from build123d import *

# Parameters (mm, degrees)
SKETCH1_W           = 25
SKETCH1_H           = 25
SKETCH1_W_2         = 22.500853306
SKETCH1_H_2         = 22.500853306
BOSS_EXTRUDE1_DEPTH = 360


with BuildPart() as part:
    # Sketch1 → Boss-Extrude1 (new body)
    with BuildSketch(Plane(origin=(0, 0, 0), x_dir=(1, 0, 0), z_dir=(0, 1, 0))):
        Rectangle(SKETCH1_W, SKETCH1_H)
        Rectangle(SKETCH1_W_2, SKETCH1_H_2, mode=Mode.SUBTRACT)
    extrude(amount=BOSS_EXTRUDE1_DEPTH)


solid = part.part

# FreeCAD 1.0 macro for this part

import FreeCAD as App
import Part
import Sketcher
from FreeCAD import Vector
Q = App.Units.Quantity


def add_polygon(sketch, points):
    """Adds a closed chain of lines whose ends are joined by coincident constraints."""
    first, n = sketch.GeometryCount, len(points)
    for a, b in zip(points, points[1:] + points[:1]):
        sketch.addGeometry(Part.LineSegment(App.Vector(*a, 0), App.Vector(*b, 0)), False)
    for i in range(n):
        sketch.addConstraint(Sketcher.Constraint("Coincident", first + i, 2, first + (i + 1) % n, 1))

doc = App.newDocument("Part")
params = doc.addObject("Spreadsheet::Sheet", "Params")
for row, (alias, value) in enumerate([
    ("sketch1_width", "25 mm"),
    ("pad1_length", "360 mm"),
], start=1):
    params.set(f"A{row}", alias)
    params.set(f"B{row}", "=" + value)
    params.setAlias(f"B{row}", alias)

body = doc.addObject("PartDesign::Body", "Body")

# Sketch on XZ plane
sketch1 = doc.addObject("Sketcher::SketchObject", "Sketch")
body.addObject(sketch1)
sketch1.AttachmentSupport = (doc.XZ_Plane, [""])
sketch1.MapMode = "FlatFace"
add_polygon(sketch1, [(-12, -12), (-12, 12), (12, 12), (12, -12)])  # lines 0-3
add_polygon(sketch1, [(11, 11), (-11, 11), (-11, -11), (11, -11)])  # lines 4-7
sketch1.addConstraint([
    Sketcher.Constraint("Vertical", 0),
    Sketcher.Constraint("Horizontal", 1),
    Sketcher.Constraint("Vertical", 2),
    Sketcher.Constraint("Horizontal", 3),
    Sketcher.Constraint("Horizontal", 4),
    Sketcher.Constraint("Vertical", 5),
    Sketcher.Constraint("Horizontal", 6),
    Sketcher.Constraint("Vertical", 7),
    Sketcher.Constraint("Symmetric", 0, 2, 2, 2, -1, 1),
    Sketcher.Constraint("Symmetric", 4, 2, 6, 2, -1, 1),
    Sketcher.Constraint("Equal", 3, 0),
    Sketcher.Constraint("Equal", 6, 5),
    Sketcher.Constraint("DistanceX", 1, 1, 1, 2, Q("25 mm")),
    Sketcher.Constraint("DistanceX", 4, 2, 4, 1, Q("22.500853 mm")),
])
sketch1.setExpression("Constraints[20]", "Params.sketch1_width")
pad1 = doc.addObject("PartDesign::Pad", "Pad")
body.addObject(pad1)
pad1.Profile = sketch1
pad1.setExpression("Length", "Params.pad1_length")
pad1.Reversed = True

doc.recompute()
